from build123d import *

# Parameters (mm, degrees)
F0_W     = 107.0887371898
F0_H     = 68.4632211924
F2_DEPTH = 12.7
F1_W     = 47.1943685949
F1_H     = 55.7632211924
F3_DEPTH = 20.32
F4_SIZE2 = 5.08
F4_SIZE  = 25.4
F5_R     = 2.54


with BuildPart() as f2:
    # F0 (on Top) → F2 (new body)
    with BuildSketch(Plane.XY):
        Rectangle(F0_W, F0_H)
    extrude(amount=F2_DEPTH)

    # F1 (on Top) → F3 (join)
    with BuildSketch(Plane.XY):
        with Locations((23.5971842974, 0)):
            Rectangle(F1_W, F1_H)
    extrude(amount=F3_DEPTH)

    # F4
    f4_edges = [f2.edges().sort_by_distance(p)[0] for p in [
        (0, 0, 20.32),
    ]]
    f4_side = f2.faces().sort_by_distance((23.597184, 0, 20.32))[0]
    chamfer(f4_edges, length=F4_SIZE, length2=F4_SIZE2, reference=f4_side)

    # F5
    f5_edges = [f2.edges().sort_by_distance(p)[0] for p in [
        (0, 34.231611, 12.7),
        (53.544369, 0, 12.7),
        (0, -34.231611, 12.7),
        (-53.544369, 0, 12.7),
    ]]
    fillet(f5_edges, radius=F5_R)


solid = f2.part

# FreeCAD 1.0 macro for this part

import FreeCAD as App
import Part
import Sketcher
from FreeCAD import Vector
Q = App.Units.Quantity


def edges_at(feature, points):
    """Names of the edges that pass closest to the given points."""
    edges = feature.Shape.Edges
    near = lambda p: min(range(len(edges)), key=lambda i: edges[i].distToShape(Part.Vertex(*p))[0])
    return sorted({f"Edge{near(p) + 1}" for p in points})

doc = App.newDocument("Part")
body = doc.addObject("PartDesign::Body", "Body")

sketch1 = doc.addObject("Sketcher::SketchObject", "Sketch")
body.addObject(sketch1)
sketch1.AttachmentSupport = (doc.XY_Plane, [""])
sketch1.MapMode = "FlatFace"
sketch1.addGeometry([
    Part.LineSegment(Vector(-53.544369, 34.231611, 0), Vector(-53.544369, -34.231611, 0)),
    Part.LineSegment(Vector(-53.544369, -34.231611, 0), Vector(53.544369, -34.231611, 0)),
    Part.LineSegment(Vector(53.544369, -34.231611, 0), Vector(53.544369, 34.231611, 0)),
    Part.LineSegment(Vector(53.544369, 34.231611, 0), Vector(-53.544369, 34.231611, 0)),
], False)
sketch1.addConstraint([
    Sketcher.Constraint("Coincident", 0, 2, 1, 1),
    Sketcher.Constraint("Coincident", 1, 2, 2, 1),
    Sketcher.Constraint("Coincident", 2, 2, 3, 1),
    Sketcher.Constraint("Coincident", 3, 2, 0, 1),
    Sketcher.Constraint("Vertical", 0),
    Sketcher.Constraint("Horizontal", 1),
    Sketcher.Constraint("Vertical", 2),
    Sketcher.Constraint("Horizontal", 3),
    Sketcher.Constraint("Symmetric", 0, 2, 2, 2, -1, 1),
    Sketcher.Constraint("DistanceY", 0, 2, 0, 1, Q("68.463221 mm")),
    Sketcher.Constraint("DistanceX", 1, 1, 1, 2, Q("107.088737 mm")),
])
pad1 = doc.addObject("PartDesign::Pad", "Pad")
body.addObject(pad1)
pad1.Profile = sketch1
pad1.Length = Q("0.5 in")

sketch2 = doc.addObject("Sketcher::SketchObject", "Sketch001")
body.addObject(sketch2)
sketch2.AttachmentSupport = (doc.XY_Plane, [""])
sketch2.MapMode = "FlatFace"
sketch2.addGeometry([
    Part.LineSegment(Vector(0, 27.881611, 0), Vector(0, -27.881611, 0)),
    Part.LineSegment(Vector(0, -27.881611, 0), Vector(47.194369, -27.881611, 0)),
    Part.LineSegment(Vector(47.194369, -27.881611, 0), Vector(47.194369, 27.881611, 0)),
    Part.LineSegment(Vector(47.194369, 27.881611, 0), Vector(0, 27.881611, 0)),
], False)
sketch2.addConstraint([
    Sketcher.Constraint("Coincident", 0, 2, 1, 1),
    Sketcher.Constraint("Coincident", 1, 2, 2, 1),
    Sketcher.Constraint("Coincident", 2, 2, 3, 1),
    Sketcher.Constraint("Coincident", 3, 2, 0, 1),
    Sketcher.Constraint("Vertical", 0),
    Sketcher.Constraint("Horizontal", 1),
    Sketcher.Constraint("Vertical", 2),
    Sketcher.Constraint("Horizontal", 3),
    Sketcher.Constraint("Symmetric", 0, 2, 3, 2, -1, 1),
    Sketcher.Constraint("DistanceX", 1, 1, 1, 2, Q("47.194369 mm")),
    Sketcher.Constraint("DistanceY", 0, 2, 0, 1, Q("55.763221 mm")),
])
pad2 = doc.addObject("PartDesign::Pad", "Pad001")
body.addObject(pad2)
pad2.Profile = sketch2
pad2.Length = Q("0.8 in")
doc.recompute()

chamfer = doc.addObject("PartDesign::Chamfer", "Chamfer")
body.addObject(chamfer)
chamfer.Base = (pad2, edges_at(pad2, [(0, 0, 20.32)]))
chamfer.ChamferType = "Two distances"
chamfer.Size = Q("1 in")
chamfer.Size2 = Q("0.2 in")
chamfer.FlipDirection = True
doc.recompute()

fillet = doc.addObject("PartDesign::Fillet", "Fillet")
body.addObject(fillet)
fillet.Base = (chamfer, edges_at(chamfer, [
    (0, 34.232, 12.7),
    (53.544, 0, 12.7),
    (0, -34.232, 12.7),
    (-53.544, 0, 12.7),
]))
fillet.Radius = Q("0.1 in")

doc.recompute()
